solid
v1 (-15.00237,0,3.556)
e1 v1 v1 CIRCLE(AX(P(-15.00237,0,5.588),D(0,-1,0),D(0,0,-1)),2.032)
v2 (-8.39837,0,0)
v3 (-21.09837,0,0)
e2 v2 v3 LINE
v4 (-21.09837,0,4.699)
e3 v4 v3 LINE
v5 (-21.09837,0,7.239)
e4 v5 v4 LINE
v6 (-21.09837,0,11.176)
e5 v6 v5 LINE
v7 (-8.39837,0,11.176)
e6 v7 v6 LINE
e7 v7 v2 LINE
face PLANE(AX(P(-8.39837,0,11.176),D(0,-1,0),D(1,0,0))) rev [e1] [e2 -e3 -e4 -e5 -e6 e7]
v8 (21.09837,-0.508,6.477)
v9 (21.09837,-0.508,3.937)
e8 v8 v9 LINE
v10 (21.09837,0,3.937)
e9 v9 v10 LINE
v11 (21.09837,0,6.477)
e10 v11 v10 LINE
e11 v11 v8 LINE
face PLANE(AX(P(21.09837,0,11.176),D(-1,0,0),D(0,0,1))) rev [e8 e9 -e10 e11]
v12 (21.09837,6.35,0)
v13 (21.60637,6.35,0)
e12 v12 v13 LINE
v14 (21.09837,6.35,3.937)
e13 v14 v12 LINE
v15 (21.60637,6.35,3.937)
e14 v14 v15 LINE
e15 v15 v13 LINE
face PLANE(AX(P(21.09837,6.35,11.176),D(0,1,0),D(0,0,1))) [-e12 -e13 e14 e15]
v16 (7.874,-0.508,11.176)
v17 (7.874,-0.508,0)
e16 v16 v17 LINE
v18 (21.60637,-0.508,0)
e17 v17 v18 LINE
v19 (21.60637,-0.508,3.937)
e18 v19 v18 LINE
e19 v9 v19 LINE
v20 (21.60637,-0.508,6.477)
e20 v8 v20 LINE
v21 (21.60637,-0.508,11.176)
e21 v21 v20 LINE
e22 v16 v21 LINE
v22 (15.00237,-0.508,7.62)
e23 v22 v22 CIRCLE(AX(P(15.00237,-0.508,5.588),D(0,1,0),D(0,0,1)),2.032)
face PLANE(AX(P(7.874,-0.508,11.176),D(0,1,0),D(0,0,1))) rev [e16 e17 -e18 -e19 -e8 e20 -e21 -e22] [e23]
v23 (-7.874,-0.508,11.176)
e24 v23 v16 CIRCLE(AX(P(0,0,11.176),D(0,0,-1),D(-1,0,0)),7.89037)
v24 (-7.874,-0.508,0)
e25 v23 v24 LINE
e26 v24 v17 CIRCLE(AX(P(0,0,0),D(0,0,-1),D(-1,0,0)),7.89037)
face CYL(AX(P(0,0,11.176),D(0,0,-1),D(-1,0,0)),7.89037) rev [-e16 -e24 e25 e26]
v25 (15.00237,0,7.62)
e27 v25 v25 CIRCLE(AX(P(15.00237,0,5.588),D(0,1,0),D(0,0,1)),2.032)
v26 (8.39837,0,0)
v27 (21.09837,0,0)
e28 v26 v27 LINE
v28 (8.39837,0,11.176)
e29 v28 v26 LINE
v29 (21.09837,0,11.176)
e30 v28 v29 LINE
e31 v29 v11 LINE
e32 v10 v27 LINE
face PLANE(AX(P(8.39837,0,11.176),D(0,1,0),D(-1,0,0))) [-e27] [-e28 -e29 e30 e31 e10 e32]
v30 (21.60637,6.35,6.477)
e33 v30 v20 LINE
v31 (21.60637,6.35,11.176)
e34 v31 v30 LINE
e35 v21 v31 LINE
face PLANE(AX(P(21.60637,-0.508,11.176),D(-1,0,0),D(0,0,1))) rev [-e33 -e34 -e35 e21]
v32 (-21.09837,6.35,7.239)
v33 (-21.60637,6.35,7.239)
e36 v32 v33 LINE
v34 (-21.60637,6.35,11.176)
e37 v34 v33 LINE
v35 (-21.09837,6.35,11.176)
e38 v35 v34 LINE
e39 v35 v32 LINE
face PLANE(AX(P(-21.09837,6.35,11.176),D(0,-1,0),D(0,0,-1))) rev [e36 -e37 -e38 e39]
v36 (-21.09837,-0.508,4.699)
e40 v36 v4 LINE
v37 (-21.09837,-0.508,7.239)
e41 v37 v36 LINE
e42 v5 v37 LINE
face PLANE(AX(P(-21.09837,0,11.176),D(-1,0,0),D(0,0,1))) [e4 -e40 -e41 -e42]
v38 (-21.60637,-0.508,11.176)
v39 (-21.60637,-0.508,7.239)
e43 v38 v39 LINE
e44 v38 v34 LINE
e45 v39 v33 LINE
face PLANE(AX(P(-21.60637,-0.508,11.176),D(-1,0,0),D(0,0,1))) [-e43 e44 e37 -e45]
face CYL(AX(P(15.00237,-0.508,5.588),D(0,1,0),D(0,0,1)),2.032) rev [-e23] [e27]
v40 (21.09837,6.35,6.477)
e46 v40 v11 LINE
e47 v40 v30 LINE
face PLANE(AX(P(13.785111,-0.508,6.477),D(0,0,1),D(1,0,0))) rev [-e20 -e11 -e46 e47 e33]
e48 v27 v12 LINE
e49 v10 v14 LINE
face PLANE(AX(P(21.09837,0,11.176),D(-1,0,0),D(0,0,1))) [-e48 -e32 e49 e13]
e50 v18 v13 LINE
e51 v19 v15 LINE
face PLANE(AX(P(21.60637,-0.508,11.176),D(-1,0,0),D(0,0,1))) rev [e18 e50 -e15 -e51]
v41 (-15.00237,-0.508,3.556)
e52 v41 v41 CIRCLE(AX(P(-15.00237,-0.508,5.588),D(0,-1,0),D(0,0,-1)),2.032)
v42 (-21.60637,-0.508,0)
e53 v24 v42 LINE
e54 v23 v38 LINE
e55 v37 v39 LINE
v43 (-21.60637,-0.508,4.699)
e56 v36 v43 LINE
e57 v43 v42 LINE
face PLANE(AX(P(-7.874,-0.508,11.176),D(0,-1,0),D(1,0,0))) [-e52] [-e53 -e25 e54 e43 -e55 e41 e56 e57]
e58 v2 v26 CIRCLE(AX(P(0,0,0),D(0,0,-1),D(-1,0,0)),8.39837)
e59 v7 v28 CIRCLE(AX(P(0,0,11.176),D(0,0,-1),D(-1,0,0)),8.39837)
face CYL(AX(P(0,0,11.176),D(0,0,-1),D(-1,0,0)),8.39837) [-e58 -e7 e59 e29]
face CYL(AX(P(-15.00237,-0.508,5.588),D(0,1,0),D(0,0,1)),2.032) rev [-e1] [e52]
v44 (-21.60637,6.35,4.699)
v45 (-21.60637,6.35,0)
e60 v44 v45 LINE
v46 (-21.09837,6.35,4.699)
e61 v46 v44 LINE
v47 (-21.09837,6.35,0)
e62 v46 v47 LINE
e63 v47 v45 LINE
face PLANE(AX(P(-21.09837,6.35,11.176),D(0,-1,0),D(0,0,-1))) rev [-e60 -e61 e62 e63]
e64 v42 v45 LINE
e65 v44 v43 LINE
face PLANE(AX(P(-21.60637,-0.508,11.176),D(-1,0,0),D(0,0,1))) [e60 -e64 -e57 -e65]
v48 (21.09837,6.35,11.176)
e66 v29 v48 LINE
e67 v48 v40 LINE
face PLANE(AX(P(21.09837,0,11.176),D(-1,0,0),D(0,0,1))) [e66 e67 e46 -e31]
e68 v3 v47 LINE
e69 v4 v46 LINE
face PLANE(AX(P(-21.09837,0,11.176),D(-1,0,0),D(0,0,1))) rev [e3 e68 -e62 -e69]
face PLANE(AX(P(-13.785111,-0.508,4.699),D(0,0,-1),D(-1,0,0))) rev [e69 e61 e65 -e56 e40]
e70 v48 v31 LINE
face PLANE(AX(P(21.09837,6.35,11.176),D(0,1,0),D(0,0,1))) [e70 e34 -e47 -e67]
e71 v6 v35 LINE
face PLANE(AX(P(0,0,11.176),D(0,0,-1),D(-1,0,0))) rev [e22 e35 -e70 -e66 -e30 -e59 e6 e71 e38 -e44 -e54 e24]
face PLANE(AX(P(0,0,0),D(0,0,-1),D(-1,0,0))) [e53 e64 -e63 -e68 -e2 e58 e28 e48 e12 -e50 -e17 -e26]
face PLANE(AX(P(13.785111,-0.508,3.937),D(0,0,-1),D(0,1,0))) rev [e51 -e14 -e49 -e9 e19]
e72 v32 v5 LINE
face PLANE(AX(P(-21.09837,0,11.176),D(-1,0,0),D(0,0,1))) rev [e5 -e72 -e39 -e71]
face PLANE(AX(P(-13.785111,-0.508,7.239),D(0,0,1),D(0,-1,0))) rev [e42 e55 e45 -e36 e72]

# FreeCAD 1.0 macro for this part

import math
import FreeCAD as App
import Part
import Sketcher

V = App.Vector
Q = App.Units.Quantity


def add_polygon(sketch, points):
    """Adds a closed chain of lines whose ends are joined by coincident constraints."""
    first, n = sketch.GeometryCount, len(points)
    for a, b in zip(points, points[1:] + points[:1]):
        sketch.addGeometry(Part.LineSegment(App.Vector(*a, 0), App.Vector(*b, 0)), False)
    for i in range(n):
        sketch.addConstraint(Sketcher.Constraint("Coincident", first + i, 2, first + (i + 1) % n, 1))

doc = App.newDocument("Part")
body = doc.addObject("PartDesign::Body", "Body")

sketch1 = doc.addObject("Sketcher::SketchObject", "Sketch")
body.addObject(sketch1)
sketch1.AttachmentSupport = (doc.XY_Plane, [""])
sketch1.MapMode = "FlatFace"
sketch1.addGeometry([
    Part.LineSegment(V(21.1, 0, 0), V(8.4, 0, 0)),
    Part.ArcOfCircle(Part.Circle(V(0, 0, 0), V(0, 0, 1), 8.4), math.radians(0), math.radians(180)),
    Part.LineSegment(V(-8.4, 0, 0), V(-21.1, 0, 0)),
    Part.LineSegment(V(-21.1, 0, 0), V(-21.1, 6.3, 0)),
    Part.LineSegment(V(-21.1, 6.3, 0), V(-21.6, 6.3, 0)),
    Part.LineSegment(V(-21.6, 6.3, 0), V(-21.6, -0.5, 0)),
    Part.LineSegment(V(-21.6, -0.5, 0), V(-7.9, -0.5, 0)),
    Part.ArcOfCircle(Part.Circle(V(0, 0, 0), V(0, 0, 1), 7.9), math.radians(-4), math.radians(184)),
    Part.LineSegment(V(7.9, -0.5, 0), V(21.6, -0.5, 0)),
    Part.LineSegment(V(21.6, -0.5, 0), V(21.6, 6.3, 0)),
    Part.LineSegment(V(21.6, 6.3, 0), V(21.1, 6.3, 0)),
    Part.LineSegment(V(21.1, 6.3, 0), V(21.1, 0, 0)),
], False)
sketch1.addConstraint([
    Sketcher.Constraint("Coincident", 0, 2, 1, 1),
    Sketcher.Constraint("Coincident", 1, 2, 2, 1),
    Sketcher.Constraint("Coincident", 2, 2, 3, 1),
    Sketcher.Constraint("Coincident", 3, 2, 4, 1),
    Sketcher.Constraint("Coincident", 4, 2, 5, 1),
    Sketcher.Constraint("Coincident", 5, 2, 6, 1),
    Sketcher.Constraint("Coincident", 6, 2, 7, 2),
    Sketcher.Constraint("Coincident", 7, 1, 8, 1),
    Sketcher.Constraint("Coincident", 8, 2, 9, 1),
    Sketcher.Constraint("Coincident", 9, 2, 10, 1),
    Sketcher.Constraint("Coincident", 10, 2, 11, 1),
    Sketcher.Constraint("Coincident", 11, 2, 0, 1),
    Sketcher.Constraint("Horizontal", 0),
    Sketcher.Constraint("Horizontal", 2),
    Sketcher.Constraint("Vertical", 3),
    Sketcher.Constraint("Horizontal", 4),
    Sketcher.Constraint("Vertical", 5),
    Sketcher.Constraint("Horizontal", 6),
    Sketcher.Constraint("Horizontal", 8),
    Sketcher.Constraint("Vertical", 9),
    Sketcher.Constraint("Horizontal", 10),
    Sketcher.Constraint("Vertical", 11),
    Sketcher.Constraint("Coincident", 1, 3, -1, 1),
    Sketcher.Constraint("Coincident", 7, 3, -1, 1),
    Sketcher.Constraint("Symmetric", 2, 2, 11, 2, -1, 1),
    Sketcher.Constraint("Symmetric", 5, 2, 8, 2, -2),
    Sketcher.Constraint("PointOnObject", 0, 2, -1),
    Sketcher.Constraint("Horizontal", 4, 2, 9, 2),
    Sketcher.Constraint("DistanceX", 0, 2, 0, 1, Q("0.5 in")),
    Sketcher.Constraint("DistanceX", 4, 2, 4, 1, Q("0.02 in")),
    Sketcher.Constraint("DistanceY", 3, 1, 3, 2, Q("0.25 in")),
    Sketcher.Constraint("DistanceY", 5, 2, 5, 1, Q("0.27 in")),
    Sketcher.Constraint("DistanceX", 6, 2, -1, 1, Q("0.31 in")),
    Sketcher.Constraint("Radius", 1, Q("8.39837 mm")),
])
pad1 = doc.addObject("PartDesign::Pad", "Pad")
body.addObject(pad1)
pad1.Profile = sketch1
pad1.Length = Q("0.44 in")

sketch2 = doc.addObject("Sketcher::SketchObject", "Sketch001")
body.addObject(sketch2)
sketch2.AttachmentSupport = (doc.XZ_Plane, [""])
sketch2.MapMode = "FlatFace"
sketch2.addGeometry([
    Part.Circle(V(15, 5.6, 0), V(0, 0, 1), 2),
    Part.Circle(V(-15, 5.6, 0), V(0, 0, 1), 2),
], False)
sketch2.addConstraint([
    Sketcher.Constraint("Equal", 0, 1),
    Sketcher.Constraint("Symmetric", 0, 3, 1, 3, -2),
    Sketcher.Constraint("Diameter", 0, Q("0.16 in")),
    Sketcher.Constraint("DistanceY", -1, 1, 0, 3, Q("0.22 in")),
    Sketcher.Constraint("DistanceX", -1, 1, 0, 3, Q("15.00237 mm")),
])
pocket1 = doc.addObject("PartDesign::Pocket", "Pocket")
body.addObject(pocket1)
pocket1.Profile = sketch2
pocket1.Type = "ThroughAll"
pocket1.Reversed = True

sketch3 = doc.addObject("Sketcher::SketchObject", "Sketch002")
body.addObject(sketch3)
sketch3.AttachmentSupport = (doc.YZ_Plane, [""])
sketch3.MapMode = "FlatFace"
sketch3.AttachmentOffset = App.Placement(V(0, 0, 21.60637), App.Rotation())
add_polygon(sketch3, [(6.3, 6.5), (-0.5, 6.5), (-0.5, 3.9), (6.3, 3.9)])
sketch3.addConstraint([
    Sketcher.Constraint("Horizontal", 0),
    Sketcher.Constraint("Vertical", 1),
    Sketcher.Constraint("Horizontal", 2),
    Sketcher.Constraint("Vertical", 3),
    Sketcher.Constraint("DistanceY", 1, 2, 1, 1, Q("0.1 in")),
    Sketcher.Constraint("DistanceX", 0, 2, 0, 1, Q("0.27 in")),
    Sketcher.Constraint("DistanceX", 0, 2, -1, 1, Q("0.02 in")),
    Sketcher.Constraint("DistanceY", -1, 1, 0, 2, Q("0.255 in")),
])
pocket2 = doc.addObject("PartDesign::Pocket", "Pocket001")
body.addObject(pocket2)
pocket2.Profile = sketch3
pocket2.Length = Q("0.02 in")

sketch4 = doc.addObject("Sketcher::SketchObject", "Sketch003")
body.addObject(sketch4)
sketch4.AttachmentSupport = (doc.YZ_Plane, [""])
sketch4.MapMode = "FlatFace"
sketch4.AttachmentOffset = App.Placement(V(0, 0, -21.60637), App.Rotation())
add_polygon(sketch4, [(6.3, 4.7), (-0.5, 4.7), (-0.5, 7.2), (6.3, 7.2)])
sketch4.addConstraint([
    Sketcher.Constraint("Horizontal", 0),
    Sketcher.Constraint("Vertical", 1),
    Sketcher.Constraint("Horizontal", 2),
    Sketcher.Constraint("Vertical", 3),
    Sketcher.Constraint("DistanceY", 1, 1, 1, 2, Q("0.1 in")),
    Sketcher.Constraint("DistanceX", 0, 2, 0, 1, Q("0.27 in")),
    Sketcher.Constraint("DistanceX", 0, 2, -1, 1, Q("0.02 in")),
    Sketcher.Constraint("DistanceY", -1, 1, 0, 2, Q("0.185 in")),
])
pocket3 = doc.addObject("PartDesign::Pocket", "Pocket002")
body.addObject(pocket3)
pocket3.Profile = sketch4
pocket3.Length = Q("0.02 in")
pocket3.Reversed = True

doc.recompute()
